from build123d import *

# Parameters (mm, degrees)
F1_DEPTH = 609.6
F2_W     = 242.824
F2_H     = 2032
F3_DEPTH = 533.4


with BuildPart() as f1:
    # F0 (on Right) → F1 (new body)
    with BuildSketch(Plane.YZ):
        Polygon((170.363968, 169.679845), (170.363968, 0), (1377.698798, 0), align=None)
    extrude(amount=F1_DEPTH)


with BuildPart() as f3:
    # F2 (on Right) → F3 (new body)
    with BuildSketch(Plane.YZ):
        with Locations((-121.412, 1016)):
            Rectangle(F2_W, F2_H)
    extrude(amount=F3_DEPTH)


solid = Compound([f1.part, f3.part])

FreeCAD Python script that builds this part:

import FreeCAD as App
import Part
import Sketcher
from FreeCAD import Vector
Q = App.Units.Quantity


def add_polygon(sketch, points):
    """Adds a closed chain of lines whose ends are joined by coincident constraints."""
    first, n = sketch.GeometryCount, len(points)
    for a, b in zip(points, points[1:] + points[:1]):
        sketch.addGeometry(Part.LineSegment(App.Vector(*a, 0), App.Vector(*b, 0)), False)
    for i in range(n):
        sketch.addConstraint(Sketcher.Constraint("Coincident", first + i, 2, first + (i + 1) % n, 1))

doc = App.newDocument("Part")
body = doc.addObject("PartDesign::Body", "Body")

# Sketch on YZ plane
sketch1 = doc.addObject("Sketcher::SketchObject", "Sketch")
body.addObject(sketch1)
sketch1.AttachmentSupport = (doc.YZ_Plane, [""])
sketch1.MapMode = "FlatFace"
add_polygon(sketch1, [(170, 170), (170, 0), (1378, 0)])  # lines 0-2
sketch1.addConstraint([
    Sketcher.Constraint("Vertical", 0),
    Sketcher.Constraint("Horizontal", 1),
    Sketcher.Constraint("PointOnObject", 0, 2, -1),
    Sketcher.Constraint("Distance", 2, Q("48 in")),
    Sketcher.Constraint("Angle", 2, Q("172 deg")),
    Sketcher.Constraint("DistanceX", -1, 1, 1, 2, Q("1377.698798 mm")),
])
pad1 = doc.addObject("PartDesign::Pad", "Pad")
body.addObject(pad1)
pad1.Profile = sketch1
pad1.Length = Q("24 in")
body2 = doc.addObject("PartDesign::Body", "Body001")

# Sketch on YZ plane
sketch2 = doc.addObject("Sketcher::SketchObject", "Sketch001")
body2.addObject(sketch2)
sketch2.AttachmentSupport = (doc.getObject("YZ_Plane001"), [""])
sketch2.MapMode = "FlatFace"
add_polygon(sketch2, [(-243, 2032), (-243, 0), (0, 0), (0, 2032)])  # lines 0-3
sketch2.addConstraint([
    Sketcher.Constraint("Vertical", 0),
    Sketcher.Constraint("Horizontal", 1),
    Sketcher.Constraint("Vertical", 2),
    Sketcher.Constraint("Horizontal", 3),
    Sketcher.Constraint("Coincident", 1, 2, -1, 1),
    Sketcher.Constraint("DistanceY", 0, 2, 0, 1, Q("80 in")),
    Sketcher.Constraint("DistanceX", 1, 1, 1, 2, Q("9.56 in")),
])
pad2 = doc.addObject("PartDesign::Pad", "Pad001")
body2.addObject(pad2)
pad2.Profile = sketch2
pad2.Length = Q("21 in")

doc.recompute()
